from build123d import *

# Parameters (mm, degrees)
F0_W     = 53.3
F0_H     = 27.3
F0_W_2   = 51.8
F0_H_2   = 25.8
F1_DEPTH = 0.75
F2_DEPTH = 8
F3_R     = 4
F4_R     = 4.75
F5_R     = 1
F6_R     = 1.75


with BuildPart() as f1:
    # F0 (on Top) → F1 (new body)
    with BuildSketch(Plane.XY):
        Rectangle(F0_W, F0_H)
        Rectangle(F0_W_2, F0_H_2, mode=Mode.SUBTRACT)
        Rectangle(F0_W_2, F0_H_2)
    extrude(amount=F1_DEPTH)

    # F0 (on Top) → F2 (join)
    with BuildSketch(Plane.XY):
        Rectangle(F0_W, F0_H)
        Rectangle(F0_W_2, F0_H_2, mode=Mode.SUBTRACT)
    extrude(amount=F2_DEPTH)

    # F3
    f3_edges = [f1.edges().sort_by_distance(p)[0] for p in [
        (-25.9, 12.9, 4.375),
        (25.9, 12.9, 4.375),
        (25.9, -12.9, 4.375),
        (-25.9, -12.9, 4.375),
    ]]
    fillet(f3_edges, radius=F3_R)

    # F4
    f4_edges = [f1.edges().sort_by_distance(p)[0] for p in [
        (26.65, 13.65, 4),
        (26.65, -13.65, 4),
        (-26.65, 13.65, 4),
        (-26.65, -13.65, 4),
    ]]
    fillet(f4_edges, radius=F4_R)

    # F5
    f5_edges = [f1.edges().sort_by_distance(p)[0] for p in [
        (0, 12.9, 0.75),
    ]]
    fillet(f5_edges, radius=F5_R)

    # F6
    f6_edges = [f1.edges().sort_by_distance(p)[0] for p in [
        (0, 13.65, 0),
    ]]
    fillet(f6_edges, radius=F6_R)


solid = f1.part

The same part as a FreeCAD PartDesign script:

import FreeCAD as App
import Part
import Sketcher


def edges_at(feature, points):
    """Names of the edges that pass closest to the given points."""
    edges = feature.Shape.Edges
    near = lambda p: min(range(len(edges)), key=lambda i: edges[i].distToShape(Part.Vertex(*p))[0])
    return sorted({f"Edge{near(p) + 1}" for p in points})


def add_polygon(sketch, points):
    """Adds a closed chain of lines whose ends are joined by coincident constraints."""
    first, n = sketch.GeometryCount, len(points)
    for a, b in zip(points, points[1:] + points[:1]):
        sketch.addGeometry(Part.LineSegment(App.Vector(*a, 0), App.Vector(*b, 0)), False)
    for i in range(n):
        sketch.addConstraint(Sketcher.Constraint("Coincident", first + i, 2, first + (i + 1) % n, 1))

doc = App.newDocument("Part")
body = doc.addObject("PartDesign::Body", "Body")

sketch1 = body.newObject("Sketcher::SketchObject", "Sketch")
sketch1.AttachmentSupport = (doc.getObject("XY_Plane"), [""])
sketch1.MapMode = "FlatFace"
add_polygon(sketch1, [(-26.65, 13.65), (-26.65, -13.65), (26.65, -13.65), (26.65, 13.65)])
sketch1.addConstraint([
    Sketcher.Constraint("Vertical", 0),
    Sketcher.Constraint("Horizontal", 1),
    Sketcher.Constraint("Vertical", 2),
    Sketcher.Constraint("Horizontal", 3),
    Sketcher.Constraint("Symmetric", 0, 2, 2, 2, -1, 1),
    Sketcher.Constraint("DistanceX", 1, 1, 1, 2, 53.3),
    Sketcher.Constraint("DistanceY", 0, 2, 0, 1, 27.3),
])
pad1 = body.newObject("PartDesign::Pad", "Pad")
pad1.Profile = sketch1
pad1.Length = 0.75

sketch2 = body.newObject("Sketcher::SketchObject", "Sketch001")
sketch2.AttachmentSupport = (doc.getObject("XY_Plane"), [""])
sketch2.MapMode = "FlatFace"
add_polygon(sketch2, [(-26.65, 13.65), (-26.65, -13.65), (26.65, -13.65), (26.65, 13.65)])
add_polygon(sketch2, [(25.9, -12.9), (-25.9, -12.9), (-25.9, 12.9), (25.9, 12.9)])
sketch2.addConstraint([
    Sketcher.Constraint("Vertical", 0),
    Sketcher.Constraint("Horizontal", 1),
    Sketcher.Constraint("Vertical", 2),
    Sketcher.Constraint("Horizontal", 3),
    Sketcher.Constraint("Horizontal", 4),
    Sketcher.Constraint("Vertical", 5),
    Sketcher.Constraint("Horizontal", 6),
    Sketcher.Constraint("Vertical", 7),
    Sketcher.Constraint("Symmetric", 0, 2, 2, 2, -1, 1),
    Sketcher.Constraint("Symmetric", 4, 2, 6, 2, -1, 1),
    Sketcher.Constraint("DistanceX", 1, 1, 1, 2, 53.3),
    Sketcher.Constraint("DistanceX", 4, 2, 4, 1, 51.8),
    Sketcher.Constraint("DistanceY", 0, 2, 0, 1, 27.3),
    Sketcher.Constraint("DistanceY", 5, 1, 5, 2, 25.8),
])
pad2 = body.newObject("PartDesign::Pad", "Pad001")
pad2.Profile = sketch2
pad2.Length = 8
doc.recompute()

fillet = body.newObject("PartDesign::Fillet", "Fillet")
fillet.Base = (pad2, edges_at(pad2, [
    (-25.9, 12.9, 4.375),
    (25.9, 12.9, 4.375),
    (25.9, -12.9, 4.375),
    (-25.9, -12.9, 4.375),
]))
fillet.Radius = 4
doc.recompute()

fillet2 = body.newObject("PartDesign::Fillet", "Fillet001")
fillet2.Base = (fillet, edges_at(fillet, [
    (26.65, 13.65, 4),
    (26.65, -13.65, 4),
    (-26.65, 13.65, 4),
    (-26.65, -13.65, 4),
]))
fillet2.Radius = 4.75
doc.recompute()

fillet3 = body.newObject("PartDesign::Fillet", "Fillet002")
fillet3.Base = (fillet2, edges_at(fillet2, [(0, 12.9, 0.75)]))
fillet3.Radius = 1
doc.recompute()

fillet4 = body.newObject("PartDesign::Fillet", "Fillet003")
fillet4.Base = (fillet3, edges_at(fillet3, [(0, 13.65, 0)]))
fillet4.Radius = 1.75

doc.recompute()
